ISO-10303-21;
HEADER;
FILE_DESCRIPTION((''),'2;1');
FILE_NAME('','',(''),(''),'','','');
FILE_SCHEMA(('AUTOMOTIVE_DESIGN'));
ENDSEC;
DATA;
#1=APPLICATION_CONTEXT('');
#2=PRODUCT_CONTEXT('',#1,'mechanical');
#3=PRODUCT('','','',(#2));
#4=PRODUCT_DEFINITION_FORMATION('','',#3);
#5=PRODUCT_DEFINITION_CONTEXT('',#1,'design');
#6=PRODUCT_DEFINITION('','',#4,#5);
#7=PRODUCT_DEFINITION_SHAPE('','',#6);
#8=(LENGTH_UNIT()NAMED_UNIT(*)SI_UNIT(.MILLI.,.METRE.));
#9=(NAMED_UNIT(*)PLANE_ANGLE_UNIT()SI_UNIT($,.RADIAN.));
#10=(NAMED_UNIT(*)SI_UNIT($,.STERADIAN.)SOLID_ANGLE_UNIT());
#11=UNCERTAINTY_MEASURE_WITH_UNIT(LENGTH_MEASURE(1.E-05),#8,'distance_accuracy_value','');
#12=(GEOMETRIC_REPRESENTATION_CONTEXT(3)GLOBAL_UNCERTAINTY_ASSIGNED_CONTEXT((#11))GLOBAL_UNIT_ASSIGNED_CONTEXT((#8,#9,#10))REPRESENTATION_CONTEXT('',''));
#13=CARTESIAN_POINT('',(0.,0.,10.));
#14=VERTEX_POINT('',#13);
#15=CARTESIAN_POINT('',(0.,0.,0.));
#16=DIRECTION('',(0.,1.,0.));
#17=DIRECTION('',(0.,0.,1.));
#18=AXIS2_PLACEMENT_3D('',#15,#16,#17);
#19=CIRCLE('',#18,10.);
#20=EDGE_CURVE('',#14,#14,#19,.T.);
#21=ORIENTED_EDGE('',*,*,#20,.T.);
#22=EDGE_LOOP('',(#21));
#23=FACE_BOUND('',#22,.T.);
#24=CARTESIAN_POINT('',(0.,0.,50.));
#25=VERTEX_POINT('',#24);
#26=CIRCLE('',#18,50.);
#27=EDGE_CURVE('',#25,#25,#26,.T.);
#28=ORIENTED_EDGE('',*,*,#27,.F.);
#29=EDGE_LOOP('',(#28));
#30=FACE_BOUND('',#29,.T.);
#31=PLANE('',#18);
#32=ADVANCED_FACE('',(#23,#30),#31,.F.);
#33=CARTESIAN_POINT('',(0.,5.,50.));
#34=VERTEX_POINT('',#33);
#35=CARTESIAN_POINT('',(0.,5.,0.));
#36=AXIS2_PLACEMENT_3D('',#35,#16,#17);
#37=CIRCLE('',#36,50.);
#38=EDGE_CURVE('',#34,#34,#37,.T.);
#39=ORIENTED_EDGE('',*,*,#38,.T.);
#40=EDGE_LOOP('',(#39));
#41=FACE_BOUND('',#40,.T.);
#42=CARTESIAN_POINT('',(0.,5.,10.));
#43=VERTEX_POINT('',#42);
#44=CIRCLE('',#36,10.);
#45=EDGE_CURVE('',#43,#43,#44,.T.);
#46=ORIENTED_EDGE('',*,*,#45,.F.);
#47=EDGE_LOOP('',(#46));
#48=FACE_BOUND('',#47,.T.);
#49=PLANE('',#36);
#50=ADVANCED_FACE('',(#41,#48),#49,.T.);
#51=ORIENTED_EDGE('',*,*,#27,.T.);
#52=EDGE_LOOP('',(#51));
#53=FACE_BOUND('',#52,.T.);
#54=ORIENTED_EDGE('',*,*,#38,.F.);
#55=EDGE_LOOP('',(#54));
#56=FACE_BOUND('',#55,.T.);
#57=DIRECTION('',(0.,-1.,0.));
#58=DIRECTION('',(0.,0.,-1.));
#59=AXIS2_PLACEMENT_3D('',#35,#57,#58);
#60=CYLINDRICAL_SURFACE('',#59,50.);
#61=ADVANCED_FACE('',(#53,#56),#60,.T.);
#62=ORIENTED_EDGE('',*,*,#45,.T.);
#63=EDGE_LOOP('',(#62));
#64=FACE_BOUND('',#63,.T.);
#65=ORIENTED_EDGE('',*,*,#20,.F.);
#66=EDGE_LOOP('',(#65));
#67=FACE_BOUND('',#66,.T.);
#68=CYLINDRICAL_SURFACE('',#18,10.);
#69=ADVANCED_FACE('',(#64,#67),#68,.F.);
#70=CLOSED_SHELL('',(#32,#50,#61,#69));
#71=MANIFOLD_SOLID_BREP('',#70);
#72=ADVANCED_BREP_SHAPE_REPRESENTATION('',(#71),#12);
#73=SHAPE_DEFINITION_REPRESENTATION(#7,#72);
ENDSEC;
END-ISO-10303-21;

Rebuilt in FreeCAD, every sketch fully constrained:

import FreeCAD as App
import Part
import Sketcher
from FreeCAD import Vector

doc = App.newDocument("Part")
body = doc.addObject("PartDesign::Body", "Body")

# Sketch on XZ plane
sketch1 = body.newObject("Sketcher::SketchObject", "Sketch")
sketch1.AttachmentSupport = (doc.getObject("XZ_Plane"), [""])
sketch1.MapMode = "FlatFace"
sketch1.addGeometry(Part.Circle(Vector(0, 0, 0), Vector(0, 0, 1), 50), False)
sketch1.addConstraint(Sketcher.Constraint("Coincident", 0, 3, -1, 1))
sketch1.addConstraint(Sketcher.Constraint("Diameter", 0, 100.0))
pad1 = body.newObject("PartDesign::Pad", "Pad")
pad1.Profile = sketch1
pad1.Length = 5
pad1.Reversed = True

# Sketch on XZ plane
sketch2 = body.newObject("Sketcher::SketchObject", "Sketch001")
sketch2.AttachmentSupport = (doc.getObject("XZ_Plane"), [""])
sketch2.MapMode = "FlatFace"
sketch2.AttachmentOffset = App.Placement(Vector(0, 0, -5), App.Rotation())
sketch2.addGeometry(Part.Circle(Vector(0, 0, 0), Vector(0, 0, 1), 10), False)
sketch2.addConstraint(Sketcher.Constraint("Coincident", 0, 3, -1, 1))
sketch2.addConstraint(Sketcher.Constraint("Diameter", 0, 20.0))
pocket1 = body.newObject("PartDesign::Pocket", "Pocket")
pocket1.Profile = sketch2
pocket1.Length = 5
pocket1.Reversed = True

doc.recompute()
